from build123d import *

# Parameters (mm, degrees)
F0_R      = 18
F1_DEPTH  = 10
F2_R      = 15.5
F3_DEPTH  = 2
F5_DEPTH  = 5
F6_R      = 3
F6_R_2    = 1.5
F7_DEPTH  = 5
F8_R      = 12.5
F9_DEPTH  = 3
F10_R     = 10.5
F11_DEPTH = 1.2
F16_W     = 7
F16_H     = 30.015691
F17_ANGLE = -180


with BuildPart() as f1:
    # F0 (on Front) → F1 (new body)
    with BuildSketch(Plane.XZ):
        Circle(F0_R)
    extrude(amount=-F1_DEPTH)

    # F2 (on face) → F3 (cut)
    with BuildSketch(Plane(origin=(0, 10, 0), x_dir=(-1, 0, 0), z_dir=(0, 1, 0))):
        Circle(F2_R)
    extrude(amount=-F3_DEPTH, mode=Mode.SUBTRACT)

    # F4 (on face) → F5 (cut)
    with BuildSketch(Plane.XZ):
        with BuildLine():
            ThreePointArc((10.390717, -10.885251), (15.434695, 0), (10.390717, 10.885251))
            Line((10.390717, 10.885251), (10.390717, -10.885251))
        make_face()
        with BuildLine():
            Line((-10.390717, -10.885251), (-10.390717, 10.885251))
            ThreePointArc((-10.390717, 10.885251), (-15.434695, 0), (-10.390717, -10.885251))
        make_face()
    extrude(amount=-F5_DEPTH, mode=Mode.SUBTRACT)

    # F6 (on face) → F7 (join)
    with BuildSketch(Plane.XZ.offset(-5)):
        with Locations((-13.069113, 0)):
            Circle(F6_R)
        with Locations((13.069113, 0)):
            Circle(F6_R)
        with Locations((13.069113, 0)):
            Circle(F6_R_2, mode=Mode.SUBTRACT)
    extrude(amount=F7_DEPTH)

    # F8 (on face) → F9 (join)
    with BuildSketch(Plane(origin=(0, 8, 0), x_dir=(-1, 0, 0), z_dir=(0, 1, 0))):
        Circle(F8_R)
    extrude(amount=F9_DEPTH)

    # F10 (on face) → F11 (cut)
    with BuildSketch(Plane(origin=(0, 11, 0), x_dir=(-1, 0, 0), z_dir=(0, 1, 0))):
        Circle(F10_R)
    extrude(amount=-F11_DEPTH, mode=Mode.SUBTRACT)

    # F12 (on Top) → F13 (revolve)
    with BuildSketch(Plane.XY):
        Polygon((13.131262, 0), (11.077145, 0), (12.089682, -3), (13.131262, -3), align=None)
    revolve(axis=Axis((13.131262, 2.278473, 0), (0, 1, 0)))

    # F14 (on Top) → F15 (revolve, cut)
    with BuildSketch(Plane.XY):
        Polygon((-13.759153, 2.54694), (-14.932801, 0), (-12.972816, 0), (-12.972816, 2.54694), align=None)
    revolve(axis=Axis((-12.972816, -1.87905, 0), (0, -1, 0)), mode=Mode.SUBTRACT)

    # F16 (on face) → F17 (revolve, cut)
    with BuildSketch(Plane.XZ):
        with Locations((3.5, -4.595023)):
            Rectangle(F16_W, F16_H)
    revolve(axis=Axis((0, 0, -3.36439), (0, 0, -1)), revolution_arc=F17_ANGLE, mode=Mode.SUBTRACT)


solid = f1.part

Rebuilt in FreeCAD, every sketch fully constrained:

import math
import FreeCAD as App
import Part
import Sketcher

V = App.Vector
Q = App.Units.Quantity

doc = App.newDocument("Part")
body = doc.addObject("PartDesign::Body", "Body")

# Sketch on XZ plane
sketch1 = doc.addObject("Sketcher::SketchObject", "Sketch")
body.addObject(sketch1)
sketch1.AttachmentSupport = (doc.XZ_Plane, [""])
sketch1.MapMode = "FlatFace"
sketch1.addGeometry(Part.Circle(V(0, 0, 0), V(0, 0, 1), 18), False)
sketch1.addConstraint([
    Sketcher.Constraint("Coincident", 0, 3, -1, 1),
    Sketcher.Constraint("Diameter", 0, Q("36 mm")),
])
pad1 = doc.addObject("PartDesign::Pad", "Pad")
body.addObject(pad1)
pad1.Profile = sketch1
pad1.Length = 10
pad1.Reversed = True

# Sketch on XZ plane
sketch2 = doc.addObject("Sketcher::SketchObject", "Sketch001")
body.addObject(sketch2)
sketch2.AttachmentSupport = (doc.XZ_Plane, [""])
sketch2.MapMode = "FlatFace"
sketch2.AttachmentOffset = App.Placement(V(0, 0, -10), App.Rotation())
sketch2.addGeometry(Part.Circle(V(0, 0, 0), V(0, 0, 1), 15.5), False)
sketch2.addConstraint([
    Sketcher.Constraint("Coincident", 0, 3, -1, 1),
    Sketcher.Constraint("Diameter", 0, Q("31 mm")),
])
pocket1 = doc.addObject("PartDesign::Pocket", "Pocket")
body.addObject(pocket1)
pocket1.Profile = sketch2
pocket1.Length = 2
pocket1.Reversed = True

# Sketch on XZ plane
sketch3 = doc.addObject("Sketcher::SketchObject", "Sketch002")
body.addObject(sketch3)
sketch3.AttachmentSupport = (doc.XZ_Plane, [""])
sketch3.MapMode = "FlatFace"
sketch3.addGeometry([
    Part.ArcOfCircle(Part.Circle(V(1.167146, 0, 0), V(0, 0, 1), 14.267549), math.radians(-49.723869), math.radians(49.723869)),
    Part.LineSegment(V(10.390717, 10.885251, 0), V(10.390717, -10.885251, 0)),
    Part.LineSegment(V(-10.390717, -10.885251, 0), V(-10.390717, 10.885251, 0)),
    Part.ArcOfCircle(Part.Circle(V(-1.167146, 0, 0), V(0, 0, 1), 14.267549), math.radians(130.276131), math.radians(229.723869)),
], False)
sketch3.addConstraint([
    Sketcher.Constraint("Coincident", 0, 1, 1, 2),
    Sketcher.Constraint("Coincident", 1, 1, 0, 2),
    Sketcher.Constraint("Coincident", 2, 1, 3, 2),
    Sketcher.Constraint("Coincident", 3, 1, 2, 2),
    Sketcher.Constraint("Vertical", 1),
    Sketcher.Constraint("Vertical", 2),
    Sketcher.Constraint("Equal", 0, 3),
    Sketcher.Constraint("Symmetric", 0, 3, 3, 3, -1, 1),
    Sketcher.Constraint("Symmetric", 0, 1, 2, 1, -2),
    Sketcher.Constraint("Radius", 0, Q("14.267549 mm")),
    Sketcher.Constraint("DistanceY", 1, 2, 1, 1, Q("21.770502 mm")),
    Sketcher.Constraint("DistanceX", -1, 1, 0, 3, Q("1.167146 mm")),
])
pocket2 = doc.addObject("PartDesign::Pocket", "Pocket001")
body.addObject(pocket2)
pocket2.Profile = sketch3
pocket2.Length = 5

# Sketch on XZ plane
sketch4 = doc.addObject("Sketcher::SketchObject", "Sketch003")
body.addObject(sketch4)
sketch4.AttachmentSupport = (doc.XZ_Plane, [""])
sketch4.MapMode = "FlatFace"
sketch4.AttachmentOffset = App.Placement(V(0, 0, -5), App.Rotation())
sketch4.addGeometry([
    Part.Circle(V(-13.069113, 0, 0), V(0, 0, 1), 3),
    Part.Circle(V(13.069113, 0, 0), V(0, 0, 1), 3),
    Part.Circle(V(13.069113, 0, 0), V(0, 0, 1), 1.5),
], False)
sketch4.addConstraint([
    Sketcher.Constraint("Coincident", 2, 3, 1, 3),
    Sketcher.Constraint("Equal", 0, 1),
    Sketcher.Constraint("Symmetric", 0, 3, 1, 3, -1, 1),
    Sketcher.Constraint("PointOnObject", 0, 3, -1),
    Sketcher.Constraint("Diameter", 0, Q("6 mm")),
    Sketcher.Constraint("Diameter", 2, Q("3 mm")),
    Sketcher.Constraint("DistanceX", 0, 3, -1, 1, Q("13.069113 mm")),
])
pad2 = doc.addObject("PartDesign::Pad", "Pad001")
body.addObject(pad2)
pad2.Profile = sketch4
pad2.Length = 5

# Sketch on XZ plane
sketch5 = doc.addObject("Sketcher::SketchObject", "Sketch004")
body.addObject(sketch5)
sketch5.AttachmentSupport = (doc.XZ_Plane, [""])
sketch5.MapMode = "FlatFace"
sketch5.AttachmentOffset = App.Placement(V(0, 0, -8), App.Rotation())
sketch5.addGeometry(Part.Circle(V(0, 0, 0), V(0, 0, 1), 12.5), False)
sketch5.addConstraint([
    Sketcher.Constraint("Coincident", 0, 3, -1, 1),
    Sketcher.Constraint("Diameter", 0, Q("25 mm")),
])
pad3 = doc.addObject("PartDesign::Pad", "Pad002")
body.addObject(pad3)
pad3.Profile = sketch5
pad3.Length = 3
pad3.Reversed = True

# Sketch on XZ plane
sketch6 = doc.addObject("Sketcher::SketchObject", "Sketch005")
body.addObject(sketch6)
sketch6.AttachmentSupport = (doc.XZ_Plane, [""])
sketch6.MapMode = "FlatFace"
sketch6.AttachmentOffset = App.Placement(V(0, 0, -11), App.Rotation())
sketch6.addGeometry(Part.Circle(V(0, 0, 0), V(0, 0, 1), 10.5), False)
sketch6.addConstraint([
    Sketcher.Constraint("Coincident", 0, 3, -1, 1),
    Sketcher.Constraint("Diameter", 0, Q("21 mm")),
])
pocket3 = doc.addObject("PartDesign::Pocket", "Pocket002")
body.addObject(pocket3)
pocket3.Profile = sketch6
pocket3.Length = 1.2
pocket3.Reversed = True

# Sketch on XY plane
sketch7 = doc.addObject("Sketcher::SketchObject", "Sketch006")
body.addObject(sketch7)
sketch7.AttachmentSupport = (doc.XY_Plane, [""])
sketch7.MapMode = "FlatFace"
sketch7.addGeometry([
    Part.LineSegment(V(13.131262, 0, 0), V(11.077145, 0, 0)),
    Part.LineSegment(V(11.077145, 0, 0), V(12.089682, -3, 0)),
    Part.LineSegment(V(12.089682, -3, 0), V(13.131262, -3, 0)),
    Part.LineSegment(V(13.131262, -3, 0), V(13.131262, 0, 0)),
], False)
sketch7.addGeometry(Part.LineSegment(V(13.131262, -3, 0), V(13.131262, 0, 0)), True)  # axis
sketch7.addConstraint([
    Sketcher.Constraint("Coincident", 0, 2, 1, 1),
    Sketcher.Constraint("Coincident", 1, 2, 2, 1),
    Sketcher.Constraint("Coincident", 2, 2, 3, 1),
    Sketcher.Constraint("Coincident", 3, 2, 0, 1),
    Sketcher.Constraint("Horizontal", 0),
    Sketcher.Constraint("Horizontal", 2),
    Sketcher.Constraint("Vertical", 3),
    Sketcher.Constraint("Vertical", 4),
    Sketcher.Constraint("Coincident", 4, 1, 2, 2),
    Sketcher.Constraint("PointOnObject", 0, 2, -1),
    Sketcher.Constraint("PointOnObject", 4, 2, -1),
    Sketcher.Constraint("DistanceY", 3, 1, 3, 2, Q("3 mm")),
    Sketcher.Constraint("DistanceX", 2, 1, 2, 2, Q("1.04158 mm")),
    Sketcher.Constraint("DistanceX", 0, 2, 0, 1, Q("2.054117 mm")),
    Sketcher.Constraint("DistanceX", -1, 1, 0, 2, Q("11.077145 mm")),
])
revolution = doc.addObject("PartDesign::Revolution", "Revolution")
body.addObject(revolution)
revolution.Profile = sketch7
revolution.ReferenceAxis = (sketch7, ["Axis0"])
revolution.Angle = 360

# Sketch on XY plane
sketch8 = doc.addObject("Sketcher::SketchObject", "Sketch007")
body.addObject(sketch8)
sketch8.AttachmentSupport = (doc.XY_Plane, [""])
sketch8.MapMode = "FlatFace"
sketch8.addGeometry([
    Part.LineSegment(V(-13.759153, 2.54694, 0), V(-14.932801, 0, 0)),
    Part.LineSegment(V(-14.932801, 0, 0), V(-12.972816, 0, 0)),
    Part.LineSegment(V(-12.972816, 0, 0), V(-12.972816, 2.54694, 0)),
    Part.LineSegment(V(-12.972816, 2.54694, 0), V(-13.759153, 2.54694, 0)),
], False)
sketch8.addGeometry(Part.LineSegment(V(-12.972816, 2.54694, 0), V(-12.972816, 0, 0)), True)  # axis
sketch8.addConstraint([
    Sketcher.Constraint("Coincident", 0, 2, 1, 1),
    Sketcher.Constraint("Coincident", 1, 2, 2, 1),
    Sketcher.Constraint("Coincident", 2, 2, 3, 1),
    Sketcher.Constraint("Coincident", 3, 2, 0, 1),
    Sketcher.Constraint("Horizontal", 1),
    Sketcher.Constraint("Vertical", 2),
    Sketcher.Constraint("Horizontal", 3),
    Sketcher.Constraint("Vertical", 4),
    Sketcher.Constraint("Coincident", 4, 1, 2, 2),
    Sketcher.Constraint("PointOnObject", 0, 2, -1),
    Sketcher.Constraint("PointOnObject", 4, 2, -1),
    Sketcher.Constraint("DistanceY", 2, 1, 2, 2, Q("2.54694 mm")),
    Sketcher.Constraint("DistanceX", 0, 2, -1, 1, Q("14.932801 mm")),
    Sketcher.Constraint("DistanceX", 1, 1, 1, 2, Q("1.959985 mm")),
    Sketcher.Constraint("DistanceX", 3, 2, 3, 1, Q("0.786337 mm")),
])
groove = doc.addObject("PartDesign::Groove", "Groove")
body.addObject(groove)
groove.Profile = sketch8
groove.ReferenceAxis = (sketch8, ["Axis0"])
groove.Angle = 360

# Sketch on XZ plane
sketch9 = doc.addObject("Sketcher::SketchObject", "Sketch008")
body.addObject(sketch9)
sketch9.AttachmentSupport = (doc.XZ_Plane, [""])
sketch9.MapMode = "FlatFace"
sketch9.addGeometry([
    Part.LineSegment(V(0, 10.412823, 0), V(0, -19.602868, 0)),
    Part.LineSegment(V(0, -19.602868, 0), V(7, -19.602868, 0)),
    Part.LineSegment(V(7, -19.602868, 0), V(7, 10.412823, 0)),
    Part.LineSegment(V(7, 10.412823, 0), V(0, 10.412823, 0)),
], False)
sketch9.addConstraint([
    Sketcher.Constraint("Coincident", 0, 2, 1, 1),
    Sketcher.Constraint("Coincident", 1, 2, 2, 1),
    Sketcher.Constraint("Coincident", 2, 2, 3, 1),
    Sketcher.Constraint("Coincident", 3, 2, 0, 1),
    Sketcher.Constraint("Vertical", 0),
    Sketcher.Constraint("Horizontal", 1),
    Sketcher.Constraint("Vertical", 2),
    Sketcher.Constraint("Horizontal", 3),
    Sketcher.Constraint("PointOnObject", 0, 2, -2),
    Sketcher.Constraint("DistanceX", 1, 1, 1, 2, Q("7 mm")),
    Sketcher.Constraint("DistanceY", 0, 2, 0, 1, Q("30.015691 mm")),
    Sketcher.Constraint("DistanceY", 0, 2, -1, 1, Q("19.602868 mm")),
])
groove2 = doc.addObject("PartDesign::Groove", "Groove001")
body.addObject(groove2)
groove2.Profile = sketch9
groove2.ReferenceAxis = (sketch9, ["V_Axis"])
groove2.Angle = 180

doc.recompute()
